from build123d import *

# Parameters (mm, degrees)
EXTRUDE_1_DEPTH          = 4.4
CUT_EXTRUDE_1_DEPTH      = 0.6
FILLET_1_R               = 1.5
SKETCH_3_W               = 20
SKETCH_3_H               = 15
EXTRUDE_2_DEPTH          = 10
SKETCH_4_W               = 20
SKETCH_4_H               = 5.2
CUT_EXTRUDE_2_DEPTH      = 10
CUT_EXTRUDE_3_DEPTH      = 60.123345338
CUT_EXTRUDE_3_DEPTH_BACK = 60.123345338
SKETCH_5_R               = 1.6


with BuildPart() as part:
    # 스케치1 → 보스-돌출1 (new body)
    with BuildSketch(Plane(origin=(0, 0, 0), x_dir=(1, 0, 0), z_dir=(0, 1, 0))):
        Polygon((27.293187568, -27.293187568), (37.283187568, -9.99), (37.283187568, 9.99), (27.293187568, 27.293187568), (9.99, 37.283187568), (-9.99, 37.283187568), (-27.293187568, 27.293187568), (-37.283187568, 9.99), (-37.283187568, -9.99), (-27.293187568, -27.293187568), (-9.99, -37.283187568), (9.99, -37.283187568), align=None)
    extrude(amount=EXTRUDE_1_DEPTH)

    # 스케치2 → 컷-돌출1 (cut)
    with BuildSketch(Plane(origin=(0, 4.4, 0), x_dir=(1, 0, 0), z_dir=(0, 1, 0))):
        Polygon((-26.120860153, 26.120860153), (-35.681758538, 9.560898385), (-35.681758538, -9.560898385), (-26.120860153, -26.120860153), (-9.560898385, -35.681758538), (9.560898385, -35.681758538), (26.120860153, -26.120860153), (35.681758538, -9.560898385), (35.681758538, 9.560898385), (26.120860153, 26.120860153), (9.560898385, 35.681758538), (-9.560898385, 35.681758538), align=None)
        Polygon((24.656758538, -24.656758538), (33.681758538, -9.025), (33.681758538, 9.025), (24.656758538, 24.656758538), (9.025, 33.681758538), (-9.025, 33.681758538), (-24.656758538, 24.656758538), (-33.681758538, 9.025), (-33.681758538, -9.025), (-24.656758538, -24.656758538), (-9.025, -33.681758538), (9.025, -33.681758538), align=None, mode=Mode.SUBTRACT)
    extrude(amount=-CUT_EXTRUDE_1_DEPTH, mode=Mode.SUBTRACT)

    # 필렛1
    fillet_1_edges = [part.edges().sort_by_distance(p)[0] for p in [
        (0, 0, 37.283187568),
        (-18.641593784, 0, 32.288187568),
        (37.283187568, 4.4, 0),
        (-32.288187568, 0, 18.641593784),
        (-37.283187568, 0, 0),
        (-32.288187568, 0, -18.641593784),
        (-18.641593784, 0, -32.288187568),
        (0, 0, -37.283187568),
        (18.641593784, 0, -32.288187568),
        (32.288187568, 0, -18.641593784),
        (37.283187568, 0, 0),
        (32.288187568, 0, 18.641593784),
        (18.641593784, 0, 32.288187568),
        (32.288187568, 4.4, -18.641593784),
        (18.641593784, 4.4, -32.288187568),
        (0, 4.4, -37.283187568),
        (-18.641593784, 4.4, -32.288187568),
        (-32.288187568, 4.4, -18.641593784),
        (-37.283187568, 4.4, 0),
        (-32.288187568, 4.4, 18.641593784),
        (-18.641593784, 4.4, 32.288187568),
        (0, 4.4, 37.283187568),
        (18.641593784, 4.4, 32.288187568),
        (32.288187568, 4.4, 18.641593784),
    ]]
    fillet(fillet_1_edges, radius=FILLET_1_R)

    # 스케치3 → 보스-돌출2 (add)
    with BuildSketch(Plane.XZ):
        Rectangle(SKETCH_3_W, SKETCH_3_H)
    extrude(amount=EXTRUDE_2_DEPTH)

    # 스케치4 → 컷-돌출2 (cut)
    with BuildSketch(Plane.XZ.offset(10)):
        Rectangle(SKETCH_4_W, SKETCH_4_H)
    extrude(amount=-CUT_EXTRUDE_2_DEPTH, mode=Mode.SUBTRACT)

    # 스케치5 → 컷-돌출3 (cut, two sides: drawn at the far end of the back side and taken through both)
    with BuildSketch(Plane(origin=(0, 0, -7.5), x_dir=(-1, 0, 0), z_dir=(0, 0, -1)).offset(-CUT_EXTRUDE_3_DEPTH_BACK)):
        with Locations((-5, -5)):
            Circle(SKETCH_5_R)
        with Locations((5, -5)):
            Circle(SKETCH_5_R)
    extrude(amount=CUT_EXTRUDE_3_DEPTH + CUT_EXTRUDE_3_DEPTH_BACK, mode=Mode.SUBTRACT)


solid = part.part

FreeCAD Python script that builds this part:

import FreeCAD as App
import Part
import Sketcher

V = App.Vector
Q = App.Units.Quantity


def edges_at(feature, points):
    """Names of the edges that pass closest to the given points."""
    edges = feature.Shape.Edges
    near = lambda p: min(range(len(edges)), key=lambda i: edges[i].distToShape(Part.Vertex(*p))[0])
    return sorted({f"Edge{near(p) + 1}" for p in points})

doc = App.newDocument("Part")
params = doc.addObject("Spreadsheet::Sheet", "Params")
for row, (alias, value) in enumerate([
    ("sketch1_width", "19.98 mm"),
    ("sketch1_length", "19.98 mm"),
    ("pad1_length", "4.4 mm"),
    ("sketch2_width", "18.05 mm"),
    ("sketch2_length", "18.05 mm"),
    ("pocket1_length", "0.6 mm"),
    ("fillet_radius", "1.5 mm"),
    ("sketch3_width", "20 mm"),
    ("sketch3_height", "15 mm"),
    ("pad2_length", "10 mm"),
    ("sketch4_width", "20 mm"),
    ("sketch4_height", "5.2 mm"),
    ("pocket2_length", "10 mm"),
    ("sketch5_diameter", "3.2 mm"),
], start=1):
    params.set(f"A{row}", alias)
    params.set(f"B{row}", "=" + value)
    params.setAlias(f"B{row}", alias)

body = doc.addObject("PartDesign::Body", "Body")

sketch1 = doc.addObject("Sketcher::SketchObject", "Sketch")
body.addObject(sketch1)
sketch1.AttachmentSupport = (doc.XZ_Plane, [""])
sketch1.MapMode = "FlatFace"
sketch1.addGeometry(Part.LineSegment(V(27, 27, 0), V(37, 10, 0)), False)
sketch1.addGeometry(Part.LineSegment(V(37, 10, 0), V(37, -10, 0)), False)
sketch1.addGeometry(Part.LineSegment(V(37, -10, 0), V(27, -27, 0)), False)
sketch1.addGeometry(Part.LineSegment(V(27, -27, 0), V(10, -37, 0)), False)
sketch1.addGeometry(Part.LineSegment(V(10, -37, 0), V(-10, -37, 0)), False)
sketch1.addGeometry(Part.LineSegment(V(-10, -37, 0), V(-27, -27, 0)), False)
sketch1.addGeometry(Part.LineSegment(V(-27, -27, 0), V(-37, -10, 0)), False)
sketch1.addGeometry(Part.LineSegment(V(-37, -10, 0), V(-37, 10, 0)), False)
sketch1.addGeometry(Part.LineSegment(V(-37, 10, 0), V(-27, 27, 0)), False)
sketch1.addGeometry(Part.LineSegment(V(-27, 27, 0), V(-10, 37, 0)), False)
sketch1.addGeometry(Part.LineSegment(V(-10, 37, 0), V(10, 37, 0)), False)
sketch1.addGeometry(Part.LineSegment(V(10, 37, 0), V(27, 27, 0)), False)
sketch1.addConstraint(Sketcher.Constraint("Coincident", 0, 2, 1, 1))
sketch1.addConstraint(Sketcher.Constraint("Coincident", 1, 2, 2, 1))
sketch1.addConstraint(Sketcher.Constraint("Coincident", 2, 2, 3, 1))
sketch1.addConstraint(Sketcher.Constraint("Coincident", 3, 2, 4, 1))
sketch1.addConstraint(Sketcher.Constraint("Coincident", 4, 2, 5, 1))
sketch1.addConstraint(Sketcher.Constraint("Coincident", 5, 2, 6, 1))
sketch1.addConstraint(Sketcher.Constraint("Coincident", 6, 2, 7, 1))
sketch1.addConstraint(Sketcher.Constraint("Coincident", 7, 2, 8, 1))
sketch1.addConstraint(Sketcher.Constraint("Coincident", 8, 2, 9, 1))
sketch1.addConstraint(Sketcher.Constraint("Coincident", 9, 2, 10, 1))
sketch1.addConstraint(Sketcher.Constraint("Coincident", 10, 2, 11, 1))
sketch1.addConstraint(Sketcher.Constraint("Coincident", 11, 2, 0, 1))
sketch1.addConstraint(Sketcher.Constraint("Vertical", 1))
sketch1.addConstraint(Sketcher.Constraint("Horizontal", 4))
sketch1.addConstraint(Sketcher.Constraint("Vertical", 7))
sketch1.addConstraint(Sketcher.Constraint("Horizontal", 10))
sketch1.addConstraint(Sketcher.Constraint("Symmetric", 0, 2, 6, 2, -1, 1))
sketch1.addConstraint(Sketcher.Constraint("Symmetric", 2, 2, 8, 2, -1, 1))
sketch1.addConstraint(Sketcher.Constraint("Symmetric", 3, 2, 9, 2, -1, 1))
sketch1.addConstraint(Sketcher.Constraint("Symmetric", 5, 2, 11, 2, -1, 1))
sketch1.addConstraint(Sketcher.Constraint("Symmetric", 2, 2, 5, 2, -2))
sketch1.addConstraint(Sketcher.Constraint("Perpendicular", 0, 3))
sketch1.addConstraint(Sketcher.Constraint("Perpendicular", 2, 5))
sketch1.addConstraint(Sketcher.Constraint("Perpendicular", 5, 8))
sketch1.addConstraint(Sketcher.Constraint("Perpendicular", 8, 11))
sketch1.addConstraint(Sketcher.Constraint("Horizontal", 1, 2, 6, 2))
sketch1.addConstraint(Sketcher.Constraint("Equal", 10, 1))
sketch1.addConstraint(Sketcher.Constraint("Equal", 2, 3))
sketch1.addConstraint(Sketcher.Constraint("Angle", 0, Q("-60 deg")))
sketch1.addConstraint(Sketcher.Constraint("DistanceX", 4, 2, 4, 1, 19.98))
sketch1.addConstraint(Sketcher.Constraint("Distance", 0, 19.98))
sketch1.setExpression("Constraints[29]", "Params.sketch1_width")
sketch1.setExpression("Constraints[30]", "Params.sketch1_length")
pad1 = doc.addObject("PartDesign::Pad", "Pad")
body.addObject(pad1)
pad1.Profile = sketch1
pad1.setExpression("Length", "Params.pad1_length")
pad1.Reversed = True

sketch2 = doc.addObject("Sketcher::SketchObject", "Sketch001")
body.addObject(sketch2)
sketch2.AttachmentSupport = (doc.XZ_Plane, [""])
sketch2.MapMode = "FlatFace"
sketch2.AttachmentOffset = App.Placement(V(0, 0, -4.4), App.Rotation())
sketch2.addGeometry(Part.LineSegment(V(-26, -26, 0), V(-36, -10, 0)), False)
sketch2.addGeometry(Part.LineSegment(V(-36, -10, 0), V(-36, 10, 0)), False)
sketch2.addGeometry(Part.LineSegment(V(-36, 10, 0), V(-26, 26, 0)), False)
sketch2.addGeometry(Part.LineSegment(V(-26, 26, 0), V(-10, 36, 0)), False)
sketch2.addGeometry(Part.LineSegment(V(-10, 36, 0), V(10, 36, 0)), False)
sketch2.addGeometry(Part.LineSegment(V(10, 36, 0), V(26, 26, 0)), False)
sketch2.addGeometry(Part.LineSegment(V(26, 26, 0), V(36, 10, 0)), False)
sketch2.addGeometry(Part.LineSegment(V(36, 10, 0), V(36, -10, 0)), False)
sketch2.addGeometry(Part.LineSegment(V(36, -10, 0), V(26, -26, 0)), False)
sketch2.addGeometry(Part.LineSegment(V(26, -26, 0), V(10, -36, 0)), False)
sketch2.addGeometry(Part.LineSegment(V(10, -36, 0), V(-10, -36, 0)), False)
sketch2.addGeometry(Part.LineSegment(V(-10, -36, 0), V(-26, -26, 0)), False)
sketch2.addGeometry(Part.LineSegment(V(34, 9, 0), V(25, 25, 0)), False)
sketch2.addGeometry(Part.LineSegment(V(25, 25, 0), V(9, 34, 0)), False)
sketch2.addGeometry(Part.LineSegment(V(9, 34, 0), V(-9, 34, 0)), False)
sketch2.addGeometry(Part.LineSegment(V(-9, 34, 0), V(-25, 25, 0)), False)
sketch2.addGeometry(Part.LineSegment(V(-25, 25, 0), V(-34, 9, 0)), False)
sketch2.addGeometry(Part.LineSegment(V(-34, 9, 0), V(-34, -9, 0)), False)
sketch2.addGeometry(Part.LineSegment(V(-34, -9, 0), V(-25, -25, 0)), False)
sketch2.addGeometry(Part.LineSegment(V(-25, -25, 0), V(-9, -34, 0)), False)
sketch2.addGeometry(Part.LineSegment(V(-9, -34, 0), V(9, -34, 0)), False)
sketch2.addGeometry(Part.LineSegment(V(9, -34, 0), V(25, -25, 0)), False)
sketch2.addGeometry(Part.LineSegment(V(25, -25, 0), V(34, -9, 0)), False)
sketch2.addGeometry(Part.LineSegment(V(34, -9, 0), V(34, 9, 0)), False)
sketch2.addConstraint(Sketcher.Constraint("Coincident", 0, 2, 1, 1))
sketch2.addConstraint(Sketcher.Constraint("Coincident", 1, 2, 2, 1))
sketch2.addConstraint(Sketcher.Constraint("Coincident", 2, 2, 3, 1))
sketch2.addConstraint(Sketcher.Constraint("Coincident", 3, 2, 4, 1))
sketch2.addConstraint(Sketcher.Constraint("Coincident", 4, 2, 5, 1))
sketch2.addConstraint(Sketcher.Constraint("Coincident", 5, 2, 6, 1))
sketch2.addConstraint(Sketcher.Constraint("Coincident", 6, 2, 7, 1))
sketch2.addConstraint(Sketcher.Constraint("Coincident", 7, 2, 8, 1))
sketch2.addConstraint(Sketcher.Constraint("Coincident", 8, 2, 9, 1))
sketch2.addConstraint(Sketcher.Constraint("Coincident", 9, 2, 10, 1))
sketch2.addConstraint(Sketcher.Constraint("Coincident", 10, 2, 11, 1))
sketch2.addConstraint(Sketcher.Constraint("Coincident", 11, 2, 0, 1))
sketch2.addConstraint(Sketcher.Constraint("Coincident", 12, 2, 13, 1))
sketch2.addConstraint(Sketcher.Constraint("Coincident", 13, 2, 14, 1))
sketch2.addConstraint(Sketcher.Constraint("Coincident", 14, 2, 15, 1))
sketch2.addConstraint(Sketcher.Constraint("Coincident", 15, 2, 16, 1))
sketch2.addConstraint(Sketcher.Constraint("Coincident", 16, 2, 17, 1))
sketch2.addConstraint(Sketcher.Constraint("Coincident", 17, 2, 18, 1))
sketch2.addConstraint(Sketcher.Constraint("Coincident", 18, 2, 19, 1))
sketch2.addConstraint(Sketcher.Constraint("Coincident", 19, 2, 20, 1))
sketch2.addConstraint(Sketcher.Constraint("Coincident", 20, 2, 21, 1))
sketch2.addConstraint(Sketcher.Constraint("Coincident", 21, 2, 22, 1))
sketch2.addConstraint(Sketcher.Constraint("Coincident", 22, 2, 23, 1))
sketch2.addConstraint(Sketcher.Constraint("Coincident", 23, 2, 12, 1))
sketch2.addConstraint(Sketcher.Constraint("Vertical", 1))
sketch2.addConstraint(Sketcher.Constraint("Horizontal", 4))
sketch2.addConstraint(Sketcher.Constraint("Vertical", 7))
sketch2.addConstraint(Sketcher.Constraint("Horizontal", 10))
sketch2.addConstraint(Sketcher.Constraint("Horizontal", 14))
sketch2.addConstraint(Sketcher.Constraint("Vertical", 17))
sketch2.addConstraint(Sketcher.Constraint("Horizontal", 20))
sketch2.addConstraint(Sketcher.Constraint("Vertical", 23))
sketch2.addConstraint(Sketcher.Constraint("Symmetric", 0, 2, 6, 2, -1, 1))
sketch2.addConstraint(Sketcher.Constraint("Symmetric", 2, 2, 8, 2, -1, 1))
sketch2.addConstraint(Sketcher.Constraint("Symmetric", 3, 2, 9, 2, -1, 1))
sketch2.addConstraint(Sketcher.Constraint("Symmetric", 5, 2, 11, 2, -1, 1))
sketch2.addConstraint(Sketcher.Constraint("Symmetric", 12, 2, 18, 2, -1, 1))
sketch2.addConstraint(Sketcher.Constraint("Symmetric", 13, 2, 19, 2, -1, 1))
sketch2.addConstraint(Sketcher.Constraint("Symmetric", 15, 2, 21, 2, -1, 1))
sketch2.addConstraint(Sketcher.Constraint("Symmetric", 16, 2, 22, 2, -1, 1))
sketch2.addConstraint(Sketcher.Constraint("Symmetric", 2, 2, 5, 2, -2))
sketch2.addConstraint(Sketcher.Constraint("Symmetric", 12, 2, 15, 2, -2))
sketch2.addConstraint(Sketcher.Constraint("Perpendicular", 0, 3))
sketch2.addConstraint(Sketcher.Constraint("Perpendicular", 2, 5))
sketch2.addConstraint(Sketcher.Constraint("Perpendicular", 5, 8))
sketch2.addConstraint(Sketcher.Constraint("Perpendicular", 8, 11))
sketch2.addConstraint(Sketcher.Constraint("Perpendicular", 9, 12))
sketch2.addConstraint(Sketcher.Constraint("Parallel", 11, 13))
sketch2.addConstraint(Sketcher.Constraint("Perpendicular", 12, 15))
sketch2.addConstraint(Sketcher.Constraint("Perpendicular", 13, 16))
sketch2.addConstraint(Sketcher.Constraint("Perpendicular", 15, 18))
sketch2.addConstraint(Sketcher.Constraint("Perpendicular", 18, 21))
sketch2.addConstraint(Sketcher.Constraint("Horizontal", 1, 2, 6, 2))
sketch2.addConstraint(Sketcher.Constraint("Equal", 10, 1))
sketch2.addConstraint(Sketcher.Constraint("Equal", 20, 17))
sketch2.addConstraint(Sketcher.Constraint("Equal", 2, 3))
sketch2.addConstraint(Sketcher.Constraint("Equal", 12, 13))
sketch2.addConstraint(Sketcher.Constraint("Angle", 0, Q("120 deg")))
sketch2.addConstraint(Sketcher.Constraint("DistanceY", 13, 2, 4, 2, 2.0))
sketch2.addConstraint(Sketcher.Constraint("DistanceX", 14, 2, 14, 1, 18.05))
sketch2.addConstraint(Sketcher.Constraint("Distance", 12, 18.05))
sketch2.addConstraint(Sketcher.Constraint("DistanceY", 0, 2, -1, 1, 9.560898))
sketch2.setExpression("Constraints[59]", "Params.sketch2_width")
sketch2.setExpression("Constraints[60]", "Params.sketch2_length")
pocket1 = doc.addObject("PartDesign::Pocket", "Pocket")
body.addObject(pocket1)
pocket1.Profile = sketch2
pocket1.setExpression("Length", "Params.pocket1_length")
pocket1.Reversed = True
doc.recompute()

fillet = doc.addObject("PartDesign::Fillet", "Fillet")
body.addObject(fillet)
fillet.Base = (pocket1, edges_at(pocket1, [
    (0, 0, 37.283),
    (-18.642, 0, 32.288),
    (37.283, 4.4, 0),
    (-32.288, 0, 18.642),
    (-37.283, 0, 0),
    (-32.288, 0, -18.642),
    (-18.642, 0, -32.288),
    (0, 0, -37.283),
    (18.642, 0, -32.288),
    (32.288, 0, -18.642),
    (37.283, 0, 0),
    (32.288, 0, 18.642),
    (18.642, 0, 32.288),
    (32.288, 4.4, -18.642),
    (18.642, 4.4, -32.288),
    (0, 4.4, -37.283),
    (-18.642, 4.4, -32.288),
    (-32.288, 4.4, -18.642),
    (-37.283, 4.4, 0),
    (-32.288, 4.4, 18.642),
    (-18.642, 4.4, 32.288),
    (0, 4.4, 37.283),
    (18.642, 4.4, 32.288),
    (32.288, 4.4, 18.642),
]))
fillet.setExpression("Radius", "Params.fillet_radius")

sketch3 = doc.addObject("Sketcher::SketchObject", "Sketch002")
body.addObject(sketch3)
sketch3.AttachmentSupport = (doc.XZ_Plane, [""])
sketch3.MapMode = "FlatFace"
sketch3.addGeometry(Part.LineSegment(V(-10, 8, 0), V(-10, -8, 0)), False)
sketch3.addGeometry(Part.LineSegment(V(-10, -8, 0), V(10, -8, 0)), False)
sketch3.addGeometry(Part.LineSegment(V(10, -8, 0), V(10, 8, 0)), False)
sketch3.addGeometry(Part.LineSegment(V(10, 8, 0), V(-10, 8, 0)), False)
sketch3.addConstraint(Sketcher.Constraint("Coincident", 0, 2, 1, 1))
sketch3.addConstraint(Sketcher.Constraint("Coincident", 1, 2, 2, 1))
sketch3.addConstraint(Sketcher.Constraint("Coincident", 2, 2, 3, 1))
sketch3.addConstraint(Sketcher.Constraint("Coincident", 3, 2, 0, 1))
sketch3.addConstraint(Sketcher.Constraint("Vertical", 0))
sketch3.addConstraint(Sketcher.Constraint("Horizontal", 1))
sketch3.addConstraint(Sketcher.Constraint("Vertical", 2))
sketch3.addConstraint(Sketcher.Constraint("Horizontal", 3))
sketch3.addConstraint(Sketcher.Constraint("Symmetric", 0, 2, 2, 2, -1, 1))
sketch3.addConstraint(Sketcher.Constraint("DistanceX", 1, 1, 1, 2, 20.0))
sketch3.addConstraint(Sketcher.Constraint("DistanceY", 0, 2, 0, 1, 15.0))
sketch3.setExpression("Constraints[9]", "Params.sketch3_width")
sketch3.setExpression("Constraints[10]", "Params.sketch3_height")
pad2 = doc.addObject("PartDesign::Pad", "Pad001")
body.addObject(pad2)
pad2.Profile = sketch3
pad2.setExpression("Length", "Params.pad2_length")

sketch4 = doc.addObject("Sketcher::SketchObject", "Sketch003")
body.addObject(sketch4)
sketch4.AttachmentSupport = (doc.XZ_Plane, [""])
sketch4.MapMode = "FlatFace"
sketch4.AttachmentOffset = App.Placement(V(0, 0, 10), App.Rotation())
sketch4.addGeometry(Part.LineSegment(V(-10, 3, 0), V(-10, -3, 0)), False)
sketch4.addGeometry(Part.LineSegment(V(-10, -3, 0), V(10, -3, 0)), False)
sketch4.addGeometry(Part.LineSegment(V(10, -3, 0), V(10, 3, 0)), False)
sketch4.addGeometry(Part.LineSegment(V(10, 3, 0), V(-10, 3, 0)), False)
sketch4.addConstraint(Sketcher.Constraint("Coincident", 0, 2, 1, 1))
sketch4.addConstraint(Sketcher.Constraint("Coincident", 1, 2, 2, 1))
sketch4.addConstraint(Sketcher.Constraint("Coincident", 2, 2, 3, 1))
sketch4.addConstraint(Sketcher.Constraint("Coincident", 3, 2, 0, 1))
sketch4.addConstraint(Sketcher.Constraint("Vertical", 0))
sketch4.addConstraint(Sketcher.Constraint("Horizontal", 1))
sketch4.addConstraint(Sketcher.Constraint("Vertical", 2))
sketch4.addConstraint(Sketcher.Constraint("Horizontal", 3))
sketch4.addConstraint(Sketcher.Constraint("Symmetric", 0, 2, 2, 2, -1, 1))
sketch4.addConstraint(Sketcher.Constraint("DistanceX", 1, 1, 1, 2, 20.0))
sketch4.addConstraint(Sketcher.Constraint("DistanceY", 0, 2, 0, 1, 5.2))
sketch4.setExpression("Constraints[9]", "Params.sketch4_width")
sketch4.setExpression("Constraints[10]", "Params.sketch4_height")
pocket2 = doc.addObject("PartDesign::Pocket", "Pocket001")
body.addObject(pocket2)
pocket2.Profile = sketch4
pocket2.setExpression("Length", "Params.pocket2_length")

sketch5 = doc.addObject("Sketcher::SketchObject", "Sketch004")
body.addObject(sketch5)
sketch5.AttachmentSupport = (doc.XY_Plane, [""])
sketch5.MapMode = "FlatFace"
sketch5.AttachmentOffset = App.Placement(V(0, 0, -7.5), App.Rotation())
sketch5.addGeometry(Part.Circle(V(5, -5, 0), V(0, 0, 1), 1.6), False)
sketch5.addGeometry(Part.Circle(V(-5, -5, 0), V(0, 0, 1), 1.6), False)
sketch5.addConstraint(Sketcher.Constraint("Equal", 0, 1))
sketch5.addConstraint(Sketcher.Constraint("Symmetric", 0, 3, 1, 3, -2))
sketch5.addConstraint(Sketcher.Constraint("Diameter", 0, 3.2))
sketch5.addConstraint(Sketcher.Constraint("DistanceX", -1, 1, 0, 3, 5.0))
sketch5.addConstraint(Sketcher.Constraint("DistanceY", 0, 3, -1, 1, 5.0))
sketch5.setExpression("Constraints[2]", "Params.sketch5_diameter")
pocket3 = doc.addObject("PartDesign::Pocket", "Pocket002")
body.addObject(pocket3)
pocket3.Profile = sketch5
pocket3.Type = "ThroughAll"
pocket3.Midplane = True

doc.recompute()
